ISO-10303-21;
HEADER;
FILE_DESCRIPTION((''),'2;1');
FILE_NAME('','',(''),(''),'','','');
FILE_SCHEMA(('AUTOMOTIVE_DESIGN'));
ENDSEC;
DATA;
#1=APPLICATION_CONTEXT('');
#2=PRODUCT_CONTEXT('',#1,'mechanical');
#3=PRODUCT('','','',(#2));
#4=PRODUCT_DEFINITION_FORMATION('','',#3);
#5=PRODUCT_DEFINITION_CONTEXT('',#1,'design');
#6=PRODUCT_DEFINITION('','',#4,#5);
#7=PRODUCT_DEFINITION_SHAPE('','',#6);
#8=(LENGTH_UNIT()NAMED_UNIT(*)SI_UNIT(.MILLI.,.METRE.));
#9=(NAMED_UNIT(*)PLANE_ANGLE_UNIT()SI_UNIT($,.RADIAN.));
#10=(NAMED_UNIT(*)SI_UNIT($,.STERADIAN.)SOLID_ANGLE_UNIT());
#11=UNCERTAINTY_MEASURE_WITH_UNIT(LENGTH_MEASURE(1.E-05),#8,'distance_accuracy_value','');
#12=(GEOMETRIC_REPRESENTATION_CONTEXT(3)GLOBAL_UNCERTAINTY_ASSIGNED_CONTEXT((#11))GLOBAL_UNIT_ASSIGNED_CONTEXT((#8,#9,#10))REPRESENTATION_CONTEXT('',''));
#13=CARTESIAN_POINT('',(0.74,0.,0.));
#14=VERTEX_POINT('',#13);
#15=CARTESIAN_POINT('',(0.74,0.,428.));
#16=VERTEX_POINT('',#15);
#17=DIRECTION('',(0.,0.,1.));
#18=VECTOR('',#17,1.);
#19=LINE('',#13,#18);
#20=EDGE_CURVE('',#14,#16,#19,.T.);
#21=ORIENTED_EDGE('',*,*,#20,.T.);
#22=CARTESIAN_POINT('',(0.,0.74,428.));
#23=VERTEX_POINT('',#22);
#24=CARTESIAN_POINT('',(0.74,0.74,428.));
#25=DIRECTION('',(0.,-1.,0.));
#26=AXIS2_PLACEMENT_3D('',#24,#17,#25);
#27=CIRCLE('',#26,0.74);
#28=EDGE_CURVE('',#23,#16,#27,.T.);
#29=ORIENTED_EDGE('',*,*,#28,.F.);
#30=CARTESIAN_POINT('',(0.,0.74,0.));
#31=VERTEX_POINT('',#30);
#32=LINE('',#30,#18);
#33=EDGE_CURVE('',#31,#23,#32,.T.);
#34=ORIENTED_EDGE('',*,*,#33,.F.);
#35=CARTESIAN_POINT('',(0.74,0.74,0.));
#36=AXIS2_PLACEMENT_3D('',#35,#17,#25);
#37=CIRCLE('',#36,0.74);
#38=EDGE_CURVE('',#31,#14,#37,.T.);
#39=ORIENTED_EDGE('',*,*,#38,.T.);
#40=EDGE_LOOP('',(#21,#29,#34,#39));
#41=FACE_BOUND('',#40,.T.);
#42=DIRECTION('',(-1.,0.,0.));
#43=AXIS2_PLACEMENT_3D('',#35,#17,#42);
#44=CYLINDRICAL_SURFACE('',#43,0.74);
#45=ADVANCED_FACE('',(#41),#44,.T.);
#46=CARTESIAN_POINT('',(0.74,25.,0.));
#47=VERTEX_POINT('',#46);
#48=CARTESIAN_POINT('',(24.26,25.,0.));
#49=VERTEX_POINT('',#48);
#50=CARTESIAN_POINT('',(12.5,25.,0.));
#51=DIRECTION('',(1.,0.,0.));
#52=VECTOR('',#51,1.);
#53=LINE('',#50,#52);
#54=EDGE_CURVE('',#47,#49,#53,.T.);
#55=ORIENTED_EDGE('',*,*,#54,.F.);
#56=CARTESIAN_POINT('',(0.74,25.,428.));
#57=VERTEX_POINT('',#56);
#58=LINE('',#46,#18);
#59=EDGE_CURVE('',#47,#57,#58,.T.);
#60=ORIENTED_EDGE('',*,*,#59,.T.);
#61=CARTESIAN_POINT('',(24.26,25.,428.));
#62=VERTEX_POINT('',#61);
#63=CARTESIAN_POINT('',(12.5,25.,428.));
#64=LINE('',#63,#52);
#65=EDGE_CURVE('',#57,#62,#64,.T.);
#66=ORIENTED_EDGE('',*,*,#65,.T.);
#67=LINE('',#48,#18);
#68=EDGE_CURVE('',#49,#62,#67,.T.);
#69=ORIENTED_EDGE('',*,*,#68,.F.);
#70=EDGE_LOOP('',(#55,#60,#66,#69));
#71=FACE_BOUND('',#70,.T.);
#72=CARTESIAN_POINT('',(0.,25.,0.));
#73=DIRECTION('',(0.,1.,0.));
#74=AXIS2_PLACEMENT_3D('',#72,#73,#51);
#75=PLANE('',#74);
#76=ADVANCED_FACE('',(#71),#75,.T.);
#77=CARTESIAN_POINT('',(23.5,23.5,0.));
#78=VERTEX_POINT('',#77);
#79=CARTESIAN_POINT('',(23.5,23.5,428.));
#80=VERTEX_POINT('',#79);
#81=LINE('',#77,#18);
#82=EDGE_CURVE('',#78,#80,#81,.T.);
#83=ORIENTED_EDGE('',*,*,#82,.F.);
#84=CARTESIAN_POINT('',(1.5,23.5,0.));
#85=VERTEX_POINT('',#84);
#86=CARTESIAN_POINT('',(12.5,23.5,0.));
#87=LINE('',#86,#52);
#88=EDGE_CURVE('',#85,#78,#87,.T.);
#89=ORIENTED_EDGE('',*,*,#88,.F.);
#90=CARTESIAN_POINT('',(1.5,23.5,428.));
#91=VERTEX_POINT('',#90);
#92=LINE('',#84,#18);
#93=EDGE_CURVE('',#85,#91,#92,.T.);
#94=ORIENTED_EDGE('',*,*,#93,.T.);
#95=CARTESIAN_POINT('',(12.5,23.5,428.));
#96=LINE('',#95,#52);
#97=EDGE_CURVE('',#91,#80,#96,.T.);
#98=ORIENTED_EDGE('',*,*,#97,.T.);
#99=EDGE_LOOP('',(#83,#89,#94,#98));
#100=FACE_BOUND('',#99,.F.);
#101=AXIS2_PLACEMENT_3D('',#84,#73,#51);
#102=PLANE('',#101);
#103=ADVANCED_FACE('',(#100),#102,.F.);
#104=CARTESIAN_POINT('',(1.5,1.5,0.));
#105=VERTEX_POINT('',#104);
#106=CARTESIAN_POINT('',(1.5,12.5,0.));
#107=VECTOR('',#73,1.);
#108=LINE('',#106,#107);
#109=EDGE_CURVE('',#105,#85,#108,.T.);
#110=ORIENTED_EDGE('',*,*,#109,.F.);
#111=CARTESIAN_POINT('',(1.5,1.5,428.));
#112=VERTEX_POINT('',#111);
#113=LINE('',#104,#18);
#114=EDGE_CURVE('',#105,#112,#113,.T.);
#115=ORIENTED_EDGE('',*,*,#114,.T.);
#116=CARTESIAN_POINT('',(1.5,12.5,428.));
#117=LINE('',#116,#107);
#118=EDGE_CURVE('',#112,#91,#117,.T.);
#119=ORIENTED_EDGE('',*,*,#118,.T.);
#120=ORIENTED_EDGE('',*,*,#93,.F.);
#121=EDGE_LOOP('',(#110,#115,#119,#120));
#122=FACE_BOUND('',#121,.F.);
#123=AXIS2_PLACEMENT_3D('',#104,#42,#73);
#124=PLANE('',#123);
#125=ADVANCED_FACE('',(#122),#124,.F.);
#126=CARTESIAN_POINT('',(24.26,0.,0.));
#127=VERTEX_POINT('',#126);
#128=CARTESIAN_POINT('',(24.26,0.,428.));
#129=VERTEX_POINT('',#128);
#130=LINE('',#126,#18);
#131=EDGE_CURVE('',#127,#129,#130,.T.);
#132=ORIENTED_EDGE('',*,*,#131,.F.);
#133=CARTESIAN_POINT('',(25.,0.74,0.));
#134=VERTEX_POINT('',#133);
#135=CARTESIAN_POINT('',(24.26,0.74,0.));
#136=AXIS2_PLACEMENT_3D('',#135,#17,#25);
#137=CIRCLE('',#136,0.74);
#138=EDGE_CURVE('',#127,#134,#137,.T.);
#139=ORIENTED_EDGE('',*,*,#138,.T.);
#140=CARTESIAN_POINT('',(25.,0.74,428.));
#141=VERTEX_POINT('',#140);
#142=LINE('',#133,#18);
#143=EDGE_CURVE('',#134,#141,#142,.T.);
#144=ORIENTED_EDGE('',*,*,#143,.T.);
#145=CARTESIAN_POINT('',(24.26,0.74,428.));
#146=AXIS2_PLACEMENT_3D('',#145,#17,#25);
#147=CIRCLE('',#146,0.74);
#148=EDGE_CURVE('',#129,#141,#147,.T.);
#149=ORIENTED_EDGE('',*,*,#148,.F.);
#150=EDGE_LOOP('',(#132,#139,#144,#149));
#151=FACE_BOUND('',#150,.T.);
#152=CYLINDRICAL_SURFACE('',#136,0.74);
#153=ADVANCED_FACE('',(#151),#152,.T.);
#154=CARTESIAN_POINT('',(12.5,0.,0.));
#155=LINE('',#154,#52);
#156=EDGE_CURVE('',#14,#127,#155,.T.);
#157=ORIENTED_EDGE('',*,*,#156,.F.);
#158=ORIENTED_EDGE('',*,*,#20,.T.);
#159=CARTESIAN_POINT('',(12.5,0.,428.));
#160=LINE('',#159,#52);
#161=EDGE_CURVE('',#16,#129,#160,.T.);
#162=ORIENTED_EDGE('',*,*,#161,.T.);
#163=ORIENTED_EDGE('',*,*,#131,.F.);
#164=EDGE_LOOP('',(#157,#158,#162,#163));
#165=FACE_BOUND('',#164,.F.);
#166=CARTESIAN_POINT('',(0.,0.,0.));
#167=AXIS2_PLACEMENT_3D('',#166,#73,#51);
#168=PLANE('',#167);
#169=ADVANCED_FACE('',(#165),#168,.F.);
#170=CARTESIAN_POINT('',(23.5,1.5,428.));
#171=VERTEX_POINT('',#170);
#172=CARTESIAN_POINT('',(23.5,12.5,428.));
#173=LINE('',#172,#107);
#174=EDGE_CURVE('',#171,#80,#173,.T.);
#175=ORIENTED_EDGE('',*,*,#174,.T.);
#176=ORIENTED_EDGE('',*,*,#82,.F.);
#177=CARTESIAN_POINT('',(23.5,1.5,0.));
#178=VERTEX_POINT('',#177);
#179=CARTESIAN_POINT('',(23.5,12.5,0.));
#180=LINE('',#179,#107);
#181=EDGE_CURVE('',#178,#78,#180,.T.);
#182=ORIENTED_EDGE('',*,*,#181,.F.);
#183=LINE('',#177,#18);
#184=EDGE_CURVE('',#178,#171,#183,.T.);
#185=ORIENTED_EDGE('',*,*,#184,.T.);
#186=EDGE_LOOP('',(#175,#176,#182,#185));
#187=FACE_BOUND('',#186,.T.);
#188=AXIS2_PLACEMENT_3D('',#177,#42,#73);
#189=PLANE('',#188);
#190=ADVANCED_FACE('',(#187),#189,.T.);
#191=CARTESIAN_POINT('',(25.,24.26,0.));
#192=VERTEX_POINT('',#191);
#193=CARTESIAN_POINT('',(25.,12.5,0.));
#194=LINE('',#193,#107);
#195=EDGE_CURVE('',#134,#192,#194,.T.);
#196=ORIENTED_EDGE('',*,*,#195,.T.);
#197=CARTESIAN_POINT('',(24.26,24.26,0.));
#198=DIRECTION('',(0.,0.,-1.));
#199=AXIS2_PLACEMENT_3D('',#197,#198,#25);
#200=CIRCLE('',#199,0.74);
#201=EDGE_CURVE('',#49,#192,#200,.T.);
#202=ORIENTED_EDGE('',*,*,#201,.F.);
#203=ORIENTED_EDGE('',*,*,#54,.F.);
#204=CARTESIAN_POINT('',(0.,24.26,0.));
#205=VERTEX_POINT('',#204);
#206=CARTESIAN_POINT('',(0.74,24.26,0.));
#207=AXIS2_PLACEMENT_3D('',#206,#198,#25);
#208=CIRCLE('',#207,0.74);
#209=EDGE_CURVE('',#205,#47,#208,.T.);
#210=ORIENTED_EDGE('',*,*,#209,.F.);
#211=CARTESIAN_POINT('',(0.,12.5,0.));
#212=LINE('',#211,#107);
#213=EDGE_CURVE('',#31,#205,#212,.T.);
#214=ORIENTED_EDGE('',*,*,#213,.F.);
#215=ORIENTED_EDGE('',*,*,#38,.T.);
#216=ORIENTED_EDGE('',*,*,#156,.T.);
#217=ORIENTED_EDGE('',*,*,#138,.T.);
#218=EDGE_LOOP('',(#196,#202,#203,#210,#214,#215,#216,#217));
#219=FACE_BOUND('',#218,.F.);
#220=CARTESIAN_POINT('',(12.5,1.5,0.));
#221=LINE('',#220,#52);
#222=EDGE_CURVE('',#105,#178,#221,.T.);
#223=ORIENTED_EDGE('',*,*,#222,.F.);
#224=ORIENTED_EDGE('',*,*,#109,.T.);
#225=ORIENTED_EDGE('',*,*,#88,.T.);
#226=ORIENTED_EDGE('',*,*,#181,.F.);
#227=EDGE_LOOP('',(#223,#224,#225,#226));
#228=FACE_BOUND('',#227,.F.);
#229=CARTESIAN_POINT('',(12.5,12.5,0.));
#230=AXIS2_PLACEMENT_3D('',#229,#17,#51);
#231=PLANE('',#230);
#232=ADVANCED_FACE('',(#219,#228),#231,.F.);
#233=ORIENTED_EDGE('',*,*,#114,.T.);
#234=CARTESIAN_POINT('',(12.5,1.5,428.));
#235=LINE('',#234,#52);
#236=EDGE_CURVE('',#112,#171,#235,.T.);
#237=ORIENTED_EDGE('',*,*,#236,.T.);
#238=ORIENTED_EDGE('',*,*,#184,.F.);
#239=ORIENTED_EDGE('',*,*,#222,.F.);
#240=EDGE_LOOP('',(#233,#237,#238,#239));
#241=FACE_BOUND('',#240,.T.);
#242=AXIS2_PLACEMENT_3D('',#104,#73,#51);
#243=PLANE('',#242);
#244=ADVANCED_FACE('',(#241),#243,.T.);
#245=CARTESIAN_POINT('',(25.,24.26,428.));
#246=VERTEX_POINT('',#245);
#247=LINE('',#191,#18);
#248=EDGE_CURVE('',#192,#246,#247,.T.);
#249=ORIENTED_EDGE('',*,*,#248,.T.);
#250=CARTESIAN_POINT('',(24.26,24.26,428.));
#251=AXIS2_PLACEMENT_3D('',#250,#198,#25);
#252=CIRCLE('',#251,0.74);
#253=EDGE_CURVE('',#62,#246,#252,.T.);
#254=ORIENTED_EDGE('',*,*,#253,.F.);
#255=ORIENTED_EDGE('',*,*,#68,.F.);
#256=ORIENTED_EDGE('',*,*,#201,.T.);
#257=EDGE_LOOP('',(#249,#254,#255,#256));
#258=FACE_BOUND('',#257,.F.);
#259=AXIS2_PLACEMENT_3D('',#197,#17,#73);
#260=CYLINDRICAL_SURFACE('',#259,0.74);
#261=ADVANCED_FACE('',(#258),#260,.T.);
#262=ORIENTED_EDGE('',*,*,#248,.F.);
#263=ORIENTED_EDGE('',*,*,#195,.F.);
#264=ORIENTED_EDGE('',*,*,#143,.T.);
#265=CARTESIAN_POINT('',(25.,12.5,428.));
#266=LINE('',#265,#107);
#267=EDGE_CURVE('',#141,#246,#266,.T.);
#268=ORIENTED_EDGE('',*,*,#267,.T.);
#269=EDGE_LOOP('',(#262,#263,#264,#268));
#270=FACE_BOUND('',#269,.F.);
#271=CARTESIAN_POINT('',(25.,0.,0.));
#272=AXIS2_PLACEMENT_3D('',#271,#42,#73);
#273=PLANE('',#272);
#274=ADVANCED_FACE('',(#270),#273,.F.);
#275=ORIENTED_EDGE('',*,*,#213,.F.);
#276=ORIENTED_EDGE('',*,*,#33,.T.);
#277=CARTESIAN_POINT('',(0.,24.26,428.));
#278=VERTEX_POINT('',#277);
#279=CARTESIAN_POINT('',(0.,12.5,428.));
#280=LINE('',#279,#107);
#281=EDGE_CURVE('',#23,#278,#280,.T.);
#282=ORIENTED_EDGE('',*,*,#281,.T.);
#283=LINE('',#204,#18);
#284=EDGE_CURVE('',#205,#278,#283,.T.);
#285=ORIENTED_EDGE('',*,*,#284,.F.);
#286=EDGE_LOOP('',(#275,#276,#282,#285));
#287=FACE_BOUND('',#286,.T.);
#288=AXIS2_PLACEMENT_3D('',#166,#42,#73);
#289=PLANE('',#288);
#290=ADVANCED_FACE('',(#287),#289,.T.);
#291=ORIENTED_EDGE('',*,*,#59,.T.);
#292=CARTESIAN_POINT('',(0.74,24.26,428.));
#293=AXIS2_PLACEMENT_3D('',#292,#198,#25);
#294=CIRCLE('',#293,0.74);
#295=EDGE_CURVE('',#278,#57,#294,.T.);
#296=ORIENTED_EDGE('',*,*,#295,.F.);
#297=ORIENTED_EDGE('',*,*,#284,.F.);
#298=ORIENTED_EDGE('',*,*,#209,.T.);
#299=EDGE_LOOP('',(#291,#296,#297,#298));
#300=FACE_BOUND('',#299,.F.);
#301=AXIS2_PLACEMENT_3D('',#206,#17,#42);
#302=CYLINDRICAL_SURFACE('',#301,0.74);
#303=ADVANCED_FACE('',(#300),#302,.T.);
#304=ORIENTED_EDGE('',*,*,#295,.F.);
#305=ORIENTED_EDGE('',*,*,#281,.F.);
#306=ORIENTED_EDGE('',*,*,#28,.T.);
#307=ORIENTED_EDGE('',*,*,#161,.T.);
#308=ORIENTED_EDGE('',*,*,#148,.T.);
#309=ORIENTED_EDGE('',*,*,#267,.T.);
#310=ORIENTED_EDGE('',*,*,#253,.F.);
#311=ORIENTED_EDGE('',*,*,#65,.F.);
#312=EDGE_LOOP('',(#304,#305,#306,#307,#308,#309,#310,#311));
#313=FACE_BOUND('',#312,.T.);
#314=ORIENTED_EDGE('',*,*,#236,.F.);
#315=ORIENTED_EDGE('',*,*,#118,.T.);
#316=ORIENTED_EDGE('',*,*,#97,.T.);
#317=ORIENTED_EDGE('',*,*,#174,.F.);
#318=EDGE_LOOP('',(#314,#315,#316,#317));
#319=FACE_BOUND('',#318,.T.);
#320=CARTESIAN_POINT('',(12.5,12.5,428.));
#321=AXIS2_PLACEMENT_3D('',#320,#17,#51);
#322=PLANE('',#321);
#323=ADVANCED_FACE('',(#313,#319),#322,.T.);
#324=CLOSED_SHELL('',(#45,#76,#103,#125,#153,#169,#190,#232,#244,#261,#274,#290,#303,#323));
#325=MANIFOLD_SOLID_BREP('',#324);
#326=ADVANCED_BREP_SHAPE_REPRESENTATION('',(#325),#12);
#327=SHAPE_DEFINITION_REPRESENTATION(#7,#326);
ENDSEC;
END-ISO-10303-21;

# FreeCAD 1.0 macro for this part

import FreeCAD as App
import Part
import Sketcher
Q = App.Units.Quantity


def edges_at(feature, points):
    """Names of the edges that pass closest to the given points."""
    edges = feature.Shape.Edges
    near = lambda p: min(range(len(edges)), key=lambda i: edges[i].distToShape(Part.Vertex(*p))[0])
    return sorted({f"Edge{near(p) + 1}" for p in points})


def add_polygon(sketch, points):
    """Adds a closed chain of lines whose ends are joined by coincident constraints."""
    first, n = sketch.GeometryCount, len(points)
    for a, b in zip(points, points[1:] + points[:1]):
        sketch.addGeometry(Part.LineSegment(App.Vector(*a, 0), App.Vector(*b, 0)), False)
    for i in range(n):
        sketch.addConstraint(Sketcher.Constraint("Coincident", first + i, 2, first + (i + 1) % n, 1))

doc = App.newDocument("Part")
body = doc.addObject("PartDesign::Body", "Body")

# Sketch on XY plane
sketch1 = doc.addObject("Sketcher::SketchObject", "Sketch")
body.addObject(sketch1)
sketch1.AttachmentSupport = (doc.XY_Plane, [""])
sketch1.MapMode = "FlatFace"
add_polygon(sketch1, [(0, 25), (0, 0), (25, 0), (25, 25)])  # lines 0-3
add_polygon(sketch1, [(23.5, 1.5), (1.5, 1.5), (1.5, 23.5), (23.5, 23.5)])  # lines 4-7
sketch1.addConstraint([
    Sketcher.Constraint("Vertical", 0),
    Sketcher.Constraint("Horizontal", 1),
    Sketcher.Constraint("Vertical", 2),
    Sketcher.Constraint("Horizontal", 3),
    Sketcher.Constraint("Horizontal", 4),
    Sketcher.Constraint("Vertical", 5),
    Sketcher.Constraint("Horizontal", 6),
    Sketcher.Constraint("Vertical", 7),
    Sketcher.Constraint("Coincident", 0, 2, -1, 1),
    Sketcher.Constraint("Equal", 3, 0),
    Sketcher.Constraint("Equal", 6, 5),
    Sketcher.Constraint("DistanceX", 1, 1, 1, 2, Q("25 mm")),
    Sketcher.Constraint("DistanceX", 4, 2, 4, 1, Q("22 mm")),
    Sketcher.Constraint("DistanceX", -1, 1, 4, 2, Q("1.5 mm")),
    Sketcher.Constraint("DistanceY", -1, 1, 4, 2, Q("1.5 mm")),
])
pad1 = doc.addObject("PartDesign::Pad", "Pad")
body.addObject(pad1)
pad1.Profile = sketch1
pad1.Length = 428
doc.recompute()

fillet = doc.addObject("PartDesign::Fillet", "Fillet")
body.addObject(fillet)
fillet.Base = (pad1, edges_at(pad1, [
    (25, 0, 214),
    (0, 0, 214),
    (25, 25, 214),
    (0, 25, 214),
]))
fillet.Radius = 0.74

doc.recompute()
